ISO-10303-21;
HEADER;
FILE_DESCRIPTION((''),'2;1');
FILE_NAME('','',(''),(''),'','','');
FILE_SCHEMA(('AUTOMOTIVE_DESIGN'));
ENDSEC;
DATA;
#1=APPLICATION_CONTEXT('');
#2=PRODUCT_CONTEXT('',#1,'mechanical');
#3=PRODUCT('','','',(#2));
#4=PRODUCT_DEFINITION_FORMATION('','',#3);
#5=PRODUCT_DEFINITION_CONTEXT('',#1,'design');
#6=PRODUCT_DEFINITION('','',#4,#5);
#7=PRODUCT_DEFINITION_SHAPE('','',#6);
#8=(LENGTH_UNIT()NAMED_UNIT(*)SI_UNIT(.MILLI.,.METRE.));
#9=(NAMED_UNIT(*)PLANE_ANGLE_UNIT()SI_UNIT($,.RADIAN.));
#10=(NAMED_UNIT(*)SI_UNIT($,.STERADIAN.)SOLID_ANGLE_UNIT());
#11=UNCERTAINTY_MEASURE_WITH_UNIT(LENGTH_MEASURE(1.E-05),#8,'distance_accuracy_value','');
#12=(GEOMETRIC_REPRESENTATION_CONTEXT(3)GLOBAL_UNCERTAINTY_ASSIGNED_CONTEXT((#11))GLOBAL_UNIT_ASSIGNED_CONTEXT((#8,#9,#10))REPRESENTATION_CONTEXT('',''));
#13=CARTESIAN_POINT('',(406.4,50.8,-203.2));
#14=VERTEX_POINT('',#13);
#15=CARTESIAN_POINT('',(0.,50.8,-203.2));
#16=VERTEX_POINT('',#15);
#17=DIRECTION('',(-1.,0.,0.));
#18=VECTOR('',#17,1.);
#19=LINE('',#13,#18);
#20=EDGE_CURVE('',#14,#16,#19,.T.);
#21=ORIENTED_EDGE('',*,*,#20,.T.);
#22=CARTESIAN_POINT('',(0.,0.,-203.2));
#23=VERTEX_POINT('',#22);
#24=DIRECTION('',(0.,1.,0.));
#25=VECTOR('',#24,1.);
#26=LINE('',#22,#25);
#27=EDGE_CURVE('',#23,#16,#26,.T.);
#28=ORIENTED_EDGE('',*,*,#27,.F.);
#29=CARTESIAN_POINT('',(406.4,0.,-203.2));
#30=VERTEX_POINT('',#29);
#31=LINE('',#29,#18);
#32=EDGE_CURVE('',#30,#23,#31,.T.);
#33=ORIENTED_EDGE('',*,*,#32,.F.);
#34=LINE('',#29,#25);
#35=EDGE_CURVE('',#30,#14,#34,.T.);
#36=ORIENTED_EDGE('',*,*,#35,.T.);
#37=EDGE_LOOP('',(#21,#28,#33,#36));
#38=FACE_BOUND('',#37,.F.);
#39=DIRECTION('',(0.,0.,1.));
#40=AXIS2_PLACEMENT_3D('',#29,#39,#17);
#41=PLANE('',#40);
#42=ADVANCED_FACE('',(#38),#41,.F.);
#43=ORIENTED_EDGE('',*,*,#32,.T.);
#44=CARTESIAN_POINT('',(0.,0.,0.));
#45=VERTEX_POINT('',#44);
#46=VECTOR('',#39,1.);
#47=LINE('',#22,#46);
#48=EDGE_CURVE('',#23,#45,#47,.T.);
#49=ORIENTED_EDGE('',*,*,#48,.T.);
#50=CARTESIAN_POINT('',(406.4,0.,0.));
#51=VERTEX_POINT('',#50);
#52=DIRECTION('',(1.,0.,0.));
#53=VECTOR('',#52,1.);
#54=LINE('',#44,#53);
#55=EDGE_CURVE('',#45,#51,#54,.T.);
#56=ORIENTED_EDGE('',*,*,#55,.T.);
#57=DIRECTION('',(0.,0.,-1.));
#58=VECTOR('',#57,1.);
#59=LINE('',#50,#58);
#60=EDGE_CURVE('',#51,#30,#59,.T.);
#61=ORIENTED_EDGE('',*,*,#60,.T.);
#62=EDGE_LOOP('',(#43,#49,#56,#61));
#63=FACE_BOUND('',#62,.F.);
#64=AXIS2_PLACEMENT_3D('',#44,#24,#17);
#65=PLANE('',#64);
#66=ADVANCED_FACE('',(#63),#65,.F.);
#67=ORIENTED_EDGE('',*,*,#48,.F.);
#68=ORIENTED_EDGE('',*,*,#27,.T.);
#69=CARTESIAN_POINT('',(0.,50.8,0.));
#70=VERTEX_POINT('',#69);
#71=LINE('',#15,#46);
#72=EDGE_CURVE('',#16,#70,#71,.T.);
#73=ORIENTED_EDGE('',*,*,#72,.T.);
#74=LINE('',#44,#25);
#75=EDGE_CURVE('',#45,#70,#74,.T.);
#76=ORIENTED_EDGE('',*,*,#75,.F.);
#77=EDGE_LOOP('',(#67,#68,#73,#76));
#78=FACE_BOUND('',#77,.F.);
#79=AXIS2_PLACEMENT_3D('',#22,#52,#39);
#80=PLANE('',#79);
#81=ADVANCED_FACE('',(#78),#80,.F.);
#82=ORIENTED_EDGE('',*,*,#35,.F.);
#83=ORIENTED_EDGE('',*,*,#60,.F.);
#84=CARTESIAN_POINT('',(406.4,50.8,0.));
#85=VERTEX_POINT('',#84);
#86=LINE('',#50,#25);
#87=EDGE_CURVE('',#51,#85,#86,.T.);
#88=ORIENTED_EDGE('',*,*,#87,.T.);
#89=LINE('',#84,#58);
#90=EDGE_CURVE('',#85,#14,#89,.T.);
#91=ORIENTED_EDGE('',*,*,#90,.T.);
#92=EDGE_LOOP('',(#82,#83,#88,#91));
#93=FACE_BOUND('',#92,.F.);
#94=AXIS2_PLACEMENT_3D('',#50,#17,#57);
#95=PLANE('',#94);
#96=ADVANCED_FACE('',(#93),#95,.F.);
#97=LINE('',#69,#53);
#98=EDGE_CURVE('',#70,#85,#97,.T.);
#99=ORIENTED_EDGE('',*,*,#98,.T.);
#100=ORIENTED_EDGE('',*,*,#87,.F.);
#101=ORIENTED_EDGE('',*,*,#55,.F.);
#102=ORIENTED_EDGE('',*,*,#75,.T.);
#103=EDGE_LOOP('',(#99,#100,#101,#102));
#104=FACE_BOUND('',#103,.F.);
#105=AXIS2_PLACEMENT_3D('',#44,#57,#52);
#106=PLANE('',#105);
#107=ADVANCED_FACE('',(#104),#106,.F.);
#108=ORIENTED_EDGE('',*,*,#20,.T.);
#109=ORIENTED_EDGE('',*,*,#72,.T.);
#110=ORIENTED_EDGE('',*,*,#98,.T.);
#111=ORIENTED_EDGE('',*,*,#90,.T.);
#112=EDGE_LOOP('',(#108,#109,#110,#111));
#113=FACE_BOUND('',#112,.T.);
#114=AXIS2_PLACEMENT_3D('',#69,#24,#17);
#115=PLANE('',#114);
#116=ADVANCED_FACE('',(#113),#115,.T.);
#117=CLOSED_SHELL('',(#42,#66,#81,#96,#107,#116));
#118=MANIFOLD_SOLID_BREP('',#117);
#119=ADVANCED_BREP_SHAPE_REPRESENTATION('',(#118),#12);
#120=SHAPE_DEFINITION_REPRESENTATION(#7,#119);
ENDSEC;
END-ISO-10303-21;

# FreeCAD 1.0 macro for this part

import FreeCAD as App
import Part
import Sketcher
from FreeCAD import Vector
Q = App.Units.Quantity


def add_polygon(sketch, points):
    """Adds a closed chain of lines whose ends are joined by coincident constraints."""
    first, n = sketch.GeometryCount, len(points)
    for a, b in zip(points, points[1:] + points[:1]):
        sketch.addGeometry(Part.LineSegment(App.Vector(*a, 0), App.Vector(*b, 0)), False)
    for i in range(n):
        sketch.addConstraint(Sketcher.Constraint("Coincident", first + i, 2, first + (i + 1) % n, 1))

doc = App.newDocument("Part")
params = doc.addObject("Spreadsheet::Sheet", "Params")
for row, (alias, value) in enumerate([
    ("sketch1_width", "16 in"),
    ("sketch1_height", "8 in"),
    ("pad1_length", "2 in"),
], start=1):
    params.set(f"A{row}", alias)
    params.set(f"B{row}", "=" + value)
    params.setAlias(f"B{row}", alias)

body = doc.addObject("PartDesign::Body", "Body")

# Sketch on XZ plane
sketch1 = body.newObject("Sketcher::SketchObject", "Sketch")
sketch1.AttachmentSupport = (doc.getObject("XZ_Plane"), [""])
sketch1.MapMode = "FlatFace"
add_polygon(sketch1, [(0, -203.2), (0, 0), (406.4, 0), (406.4, -203.2)])  # lines 0-3
sketch1.addConstraint(Sketcher.Constraint("Vertical", 0))
sketch1.addConstraint(Sketcher.Constraint("Horizontal", 1))
sketch1.addConstraint(Sketcher.Constraint("Vertical", 2))
sketch1.addConstraint(Sketcher.Constraint("Horizontal", 3))
sketch1.addConstraint(Sketcher.Constraint("Coincident", 0, 2, -1, 1))
sketch1.addConstraint(Sketcher.Constraint("DistanceX", 1, 1, 1, 2, Q("16 in")))
sketch1.addConstraint(Sketcher.Constraint("DistanceY", 0, 1, 0, 2, Q("8 in")))
sketch1.setExpression("Constraints[9]", "Params.sketch1_width")
sketch1.setExpression("Constraints[10]", "Params.sketch1_height")
pad1 = body.newObject("PartDesign::Pad", "Pad")
pad1.Profile = sketch1
pad1.setExpression("Length", "Params.pad1_length")
pad1.Reversed = True

doc.recompute()
